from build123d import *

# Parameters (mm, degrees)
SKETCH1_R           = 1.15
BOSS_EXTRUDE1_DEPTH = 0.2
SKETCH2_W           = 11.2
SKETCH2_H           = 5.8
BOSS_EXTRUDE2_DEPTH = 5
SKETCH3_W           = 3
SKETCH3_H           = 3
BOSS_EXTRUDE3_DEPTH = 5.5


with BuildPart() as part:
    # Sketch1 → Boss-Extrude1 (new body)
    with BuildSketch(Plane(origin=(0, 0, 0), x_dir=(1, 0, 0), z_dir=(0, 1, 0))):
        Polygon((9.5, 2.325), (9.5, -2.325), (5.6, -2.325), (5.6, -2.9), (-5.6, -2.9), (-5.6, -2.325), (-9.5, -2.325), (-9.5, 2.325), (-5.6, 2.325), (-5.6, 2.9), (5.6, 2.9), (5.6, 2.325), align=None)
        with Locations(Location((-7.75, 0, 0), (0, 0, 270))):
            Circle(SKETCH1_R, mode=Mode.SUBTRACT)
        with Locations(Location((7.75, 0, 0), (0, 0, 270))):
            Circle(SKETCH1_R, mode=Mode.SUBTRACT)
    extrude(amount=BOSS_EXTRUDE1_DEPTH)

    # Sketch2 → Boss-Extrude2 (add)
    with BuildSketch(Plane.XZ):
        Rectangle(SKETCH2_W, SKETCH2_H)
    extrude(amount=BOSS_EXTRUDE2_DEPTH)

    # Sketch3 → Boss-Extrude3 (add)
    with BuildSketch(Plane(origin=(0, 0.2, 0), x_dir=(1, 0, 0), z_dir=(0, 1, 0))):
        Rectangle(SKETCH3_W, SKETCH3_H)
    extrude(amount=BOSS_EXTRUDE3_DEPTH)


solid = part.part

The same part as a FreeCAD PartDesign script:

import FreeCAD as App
import Part
import Sketcher

doc = App.newDocument("Part")
body = doc.addObject("PartDesign::Body", "Body")

# Sketch on XZ plane
sketch1 = body.newObject("Sketcher::SketchObject", "Sketch")
sketch1.AttachmentSupport = (doc.getObject("XZ_Plane"), [""])
sketch1.MapMode = "FlatFace"
sketch1.addGeometry(Part.LineSegment(App.Vector(9.5, 2.325, 0), App.Vector(9.5, -2.325, 0)), False)
sketch1.addGeometry(Part.LineSegment(App.Vector(9.5, -2.325, 0), App.Vector(5.6, -2.325, 0)), False)
sketch1.addGeometry(Part.LineSegment(App.Vector(5.6, -2.325, 0), App.Vector(5.6, -2.9, 0)), False)
sketch1.addGeometry(Part.LineSegment(App.Vector(5.6, -2.9, 0), App.Vector(-5.6, -2.9, 0)), False)
sketch1.addGeometry(Part.LineSegment(App.Vector(-5.6, -2.9, 0), App.Vector(-5.6, -2.325, 0)), False)
sketch1.addGeometry(Part.LineSegment(App.Vector(-5.6, -2.325, 0), App.Vector(-9.5, -2.325, 0)), False)
sketch1.addGeometry(Part.LineSegment(App.Vector(-9.5, -2.325, 0), App.Vector(-9.5, 2.325, 0)), False)
sketch1.addGeometry(Part.LineSegment(App.Vector(-9.5, 2.325, 0), App.Vector(-5.6, 2.325, 0)), False)
sketch1.addGeometry(Part.LineSegment(App.Vector(-5.6, 2.325, 0), App.Vector(-5.6, 2.9, 0)), False)
sketch1.addGeometry(Part.LineSegment(App.Vector(-5.6, 2.9, 0), App.Vector(5.6, 2.9, 0)), False)
sketch1.addGeometry(Part.LineSegment(App.Vector(5.6, 2.9, 0), App.Vector(5.6, 2.325, 0)), False)
sketch1.addGeometry(Part.LineSegment(App.Vector(5.6, 2.325, 0), App.Vector(9.5, 2.325, 0)), False)
sketch1.addGeometry(Part.Circle(App.Vector(7.75, 0, 0), App.Vector(0, 0, 1), 1.15), False)
sketch1.addGeometry(Part.Circle(App.Vector(-7.75, 0, 0), App.Vector(0, 0, 1), 1.15), False)
sketch1.addConstraint(Sketcher.Constraint("Coincident", 0, 2, 1, 1))
sketch1.addConstraint(Sketcher.Constraint("Coincident", 1, 2, 2, 1))
sketch1.addConstraint(Sketcher.Constraint("Coincident", 2, 2, 3, 1))
sketch1.addConstraint(Sketcher.Constraint("Coincident", 3, 2, 4, 1))
sketch1.addConstraint(Sketcher.Constraint("Coincident", 4, 2, 5, 1))
sketch1.addConstraint(Sketcher.Constraint("Coincident", 5, 2, 6, 1))
sketch1.addConstraint(Sketcher.Constraint("Coincident", 6, 2, 7, 1))
sketch1.addConstraint(Sketcher.Constraint("Coincident", 7, 2, 8, 1))
sketch1.addConstraint(Sketcher.Constraint("Coincident", 8, 2, 9, 1))
sketch1.addConstraint(Sketcher.Constraint("Coincident", 9, 2, 10, 1))
sketch1.addConstraint(Sketcher.Constraint("Coincident", 10, 2, 11, 1))
sketch1.addConstraint(Sketcher.Constraint("Coincident", 11, 2, 0, 1))
sketch1.addConstraint(Sketcher.Constraint("Vertical", 0))
sketch1.addConstraint(Sketcher.Constraint("Horizontal", 1))
sketch1.addConstraint(Sketcher.Constraint("Vertical", 2))
sketch1.addConstraint(Sketcher.Constraint("Horizontal", 3))
sketch1.addConstraint(Sketcher.Constraint("Vertical", 4))
sketch1.addConstraint(Sketcher.Constraint("Horizontal", 5))
sketch1.addConstraint(Sketcher.Constraint("Vertical", 6))
sketch1.addConstraint(Sketcher.Constraint("Horizontal", 7))
sketch1.addConstraint(Sketcher.Constraint("Vertical", 8))
sketch1.addConstraint(Sketcher.Constraint("Horizontal", 9))
sketch1.addConstraint(Sketcher.Constraint("Vertical", 10))
sketch1.addConstraint(Sketcher.Constraint("Horizontal", 11))
sketch1.addConstraint(Sketcher.Constraint("Equal", 12, 13))
sketch1.addConstraint(Sketcher.Constraint("Symmetric", 12, 3, 13, 3, -1, 1))
sketch1.addConstraint(Sketcher.Constraint("Symmetric", 0, 2, 6, 2, -1, 1))
sketch1.addConstraint(Sketcher.Constraint("Symmetric", 2, 2, 8, 2, -1, 1))
sketch1.addConstraint(Sketcher.Constraint("Symmetric", 4, 2, 10, 2, -1, 1))
sketch1.addConstraint(Sketcher.Constraint("Symmetric", 1, 2, 4, 2, -2))
sketch1.addConstraint(Sketcher.Constraint("PointOnObject", 12, 3, -1))
sketch1.addConstraint(Sketcher.Constraint("Diameter", 12, 2.3))
sketch1.addConstraint(Sketcher.Constraint("DistanceX", 1, 2, 1, 1, 3.9))
sketch1.addConstraint(Sketcher.Constraint("DistanceX", 3, 2, 3, 1, 11.2))
sketch1.addConstraint(Sketcher.Constraint("DistanceY", 0, 2, 0, 1, 4.65))
sketch1.addConstraint(Sketcher.Constraint("DistanceY", 2, 2, -1, 1, 2.9))
sketch1.addConstraint(Sketcher.Constraint("DistanceX", 13, 3, 12, 3, 15.5))
pad1 = body.newObject("PartDesign::Pad", "Pad")
pad1.Profile = sketch1
pad1.Length = 0.2
pad1.Reversed = True

# Sketch on XZ plane
sketch2 = body.newObject("Sketcher::SketchObject", "Sketch001")
sketch2.AttachmentSupport = (doc.getObject("XZ_Plane"), [""])
sketch2.MapMode = "FlatFace"
sketch2.addGeometry(Part.LineSegment(App.Vector(-5.6, 2.9, 0), App.Vector(-5.6, -2.9, 0)), False)
sketch2.addGeometry(Part.LineSegment(App.Vector(-5.6, -2.9, 0), App.Vector(5.6, -2.9, 0)), False)
sketch2.addGeometry(Part.LineSegment(App.Vector(5.6, -2.9, 0), App.Vector(5.6, 2.9, 0)), False)
sketch2.addGeometry(Part.LineSegment(App.Vector(5.6, 2.9, 0), App.Vector(-5.6, 2.9, 0)), False)
sketch2.addConstraint(Sketcher.Constraint("Coincident", 0, 2, 1, 1))
sketch2.addConstraint(Sketcher.Constraint("Coincident", 1, 2, 2, 1))
sketch2.addConstraint(Sketcher.Constraint("Coincident", 2, 2, 3, 1))
sketch2.addConstraint(Sketcher.Constraint("Coincident", 3, 2, 0, 1))
sketch2.addConstraint(Sketcher.Constraint("Vertical", 0))
sketch2.addConstraint(Sketcher.Constraint("Horizontal", 1))
sketch2.addConstraint(Sketcher.Constraint("Vertical", 2))
sketch2.addConstraint(Sketcher.Constraint("Horizontal", 3))
sketch2.addConstraint(Sketcher.Constraint("Symmetric", 0, 2, 2, 2, -1, 1))
sketch2.addConstraint(Sketcher.Constraint("DistanceX", 1, 1, 1, 2, 11.2))
sketch2.addConstraint(Sketcher.Constraint("DistanceY", 0, 2, 0, 1, 5.8))
pad2 = body.newObject("PartDesign::Pad", "Pad001")
pad2.Profile = sketch2
pad2.Length = 5

# Sketch on XZ plane
sketch3 = body.newObject("Sketcher::SketchObject", "Sketch002")
sketch3.AttachmentSupport = (doc.getObject("XZ_Plane"), [""])
sketch3.MapMode = "FlatFace"
sketch3.AttachmentOffset = App.Placement(App.Vector(0, 0, -0.2), App.Rotation())
sketch3.addGeometry(Part.LineSegment(App.Vector(-1.5, -1.5, 0), App.Vector(-1.5, 1.5, 0)), False)
sketch3.addGeometry(Part.LineSegment(App.Vector(-1.5, 1.5, 0), App.Vector(1.5, 1.5, 0)), False)
sketch3.addGeometry(Part.LineSegment(App.Vector(1.5, 1.5, 0), App.Vector(1.5, -1.5, 0)), False)
sketch3.addGeometry(Part.LineSegment(App.Vector(1.5, -1.5, 0), App.Vector(-1.5, -1.5, 0)), False)
sketch3.addConstraint(Sketcher.Constraint("Coincident", 0, 2, 1, 1))
sketch3.addConstraint(Sketcher.Constraint("Coincident", 1, 2, 2, 1))
sketch3.addConstraint(Sketcher.Constraint("Coincident", 2, 2, 3, 1))
sketch3.addConstraint(Sketcher.Constraint("Coincident", 3, 2, 0, 1))
sketch3.addConstraint(Sketcher.Constraint("Vertical", 0))
sketch3.addConstraint(Sketcher.Constraint("Horizontal", 1))
sketch3.addConstraint(Sketcher.Constraint("Vertical", 2))
sketch3.addConstraint(Sketcher.Constraint("Horizontal", 3))
sketch3.addConstraint(Sketcher.Constraint("Symmetric", 0, 2, 2, 2, -1, 1))
sketch3.addConstraint(Sketcher.Constraint("Equal", 3, 0))
sketch3.addConstraint(Sketcher.Constraint("DistanceX", 1, 1, 1, 2, 3.0))
pad3 = body.newObject("PartDesign::Pad", "Pad002")
pad3.Profile = sketch3
pad3.Length = 5.5
pad3.Reversed = True

doc.recompute()
